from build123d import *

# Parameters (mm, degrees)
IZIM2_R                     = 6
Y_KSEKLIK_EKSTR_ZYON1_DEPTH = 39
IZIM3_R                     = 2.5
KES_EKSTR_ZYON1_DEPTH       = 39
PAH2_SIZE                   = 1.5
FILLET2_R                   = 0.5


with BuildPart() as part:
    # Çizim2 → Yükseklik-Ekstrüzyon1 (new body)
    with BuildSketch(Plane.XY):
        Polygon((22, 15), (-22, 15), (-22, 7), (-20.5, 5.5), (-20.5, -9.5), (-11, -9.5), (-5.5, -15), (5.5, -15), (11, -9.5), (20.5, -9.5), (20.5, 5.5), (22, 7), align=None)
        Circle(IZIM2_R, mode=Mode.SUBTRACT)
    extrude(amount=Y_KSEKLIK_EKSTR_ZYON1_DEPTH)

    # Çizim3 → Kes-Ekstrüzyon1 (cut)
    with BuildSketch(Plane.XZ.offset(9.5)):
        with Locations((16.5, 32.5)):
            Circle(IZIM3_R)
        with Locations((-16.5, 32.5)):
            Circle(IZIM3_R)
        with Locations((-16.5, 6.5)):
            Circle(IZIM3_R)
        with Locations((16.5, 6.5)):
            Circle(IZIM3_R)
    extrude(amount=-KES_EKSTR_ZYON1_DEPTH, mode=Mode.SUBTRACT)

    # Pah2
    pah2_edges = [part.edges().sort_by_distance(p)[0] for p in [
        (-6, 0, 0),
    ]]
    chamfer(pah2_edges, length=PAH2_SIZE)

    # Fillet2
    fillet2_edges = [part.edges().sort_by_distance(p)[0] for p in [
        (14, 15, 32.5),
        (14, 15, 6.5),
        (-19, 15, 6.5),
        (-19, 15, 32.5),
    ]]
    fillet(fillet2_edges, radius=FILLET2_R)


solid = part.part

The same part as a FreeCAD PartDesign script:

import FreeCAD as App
import Part
import Sketcher


def edges_at(feature, points):
    """Names of the edges that pass closest to the given points."""
    edges = feature.Shape.Edges
    near = lambda p: min(range(len(edges)), key=lambda i: edges[i].distToShape(Part.Vertex(*p))[0])
    return sorted({f"Edge{near(p) + 1}" for p in points})

doc = App.newDocument("Part")
body = doc.addObject("PartDesign::Body", "Body")

sketch1 = body.newObject("Sketcher::SketchObject", "Sketch")
sketch1.AttachmentSupport = (doc.getObject("XY_Plane"), [""])
sketch1.MapMode = "FlatFace"
sketch1.addGeometry([
    Part.LineSegment(App.Vector(22, 15, 0), App.Vector(-22, 15, 0)),
    Part.LineSegment(App.Vector(-22, 15, 0), App.Vector(-22, 7, 0)),
    Part.LineSegment(App.Vector(-22, 7, 0), App.Vector(-20.5, 5.5, 0)),
    Part.LineSegment(App.Vector(-20.5, 5.5, 0), App.Vector(-20.5, -9.5, 0)),
    Part.LineSegment(App.Vector(-20.5, -9.5, 0), App.Vector(-11, -9.5, 0)),
    Part.LineSegment(App.Vector(-11, -9.5, 0), App.Vector(-5.5, -15, 0)),
    Part.LineSegment(App.Vector(-5.5, -15, 0), App.Vector(5.5, -15, 0)),
    Part.LineSegment(App.Vector(5.5, -15, 0), App.Vector(11, -9.5, 0)),
    Part.LineSegment(App.Vector(11, -9.5, 0), App.Vector(20.5, -9.5, 0)),
    Part.LineSegment(App.Vector(20.5, -9.5, 0), App.Vector(20.5, 5.5, 0)),
    Part.LineSegment(App.Vector(20.5, 5.5, 0), App.Vector(22, 7, 0)),
    Part.LineSegment(App.Vector(22, 7, 0), App.Vector(22, 15, 0)),
    Part.Circle(App.Vector(0, 0, 0), App.Vector(0, 0, 1), 6),
], False)
sketch1.addConstraint([
    Sketcher.Constraint("Coincident", 0, 2, 1, 1),
    Sketcher.Constraint("Coincident", 1, 2, 2, 1),
    Sketcher.Constraint("Coincident", 2, 2, 3, 1),
    Sketcher.Constraint("Coincident", 3, 2, 4, 1),
    Sketcher.Constraint("Coincident", 4, 2, 5, 1),
    Sketcher.Constraint("Coincident", 5, 2, 6, 1),
    Sketcher.Constraint("Coincident", 6, 2, 7, 1),
    Sketcher.Constraint("Coincident", 7, 2, 8, 1),
    Sketcher.Constraint("Coincident", 8, 2, 9, 1),
    Sketcher.Constraint("Coincident", 9, 2, 10, 1),
    Sketcher.Constraint("Coincident", 10, 2, 11, 1),
    Sketcher.Constraint("Coincident", 11, 2, 0, 1),
    Sketcher.Constraint("Horizontal", 0),
    Sketcher.Constraint("Vertical", 1),
    Sketcher.Constraint("Vertical", 3),
    Sketcher.Constraint("Horizontal", 4),
    Sketcher.Constraint("Horizontal", 6),
    Sketcher.Constraint("Horizontal", 8),
    Sketcher.Constraint("Vertical", 9),
    Sketcher.Constraint("Vertical", 11),
    Sketcher.Constraint("Coincident", 12, 3, -1, 1),
    Sketcher.Constraint("Symmetric", 4, 2, 7, 2, -2),
    Sketcher.Constraint("Symmetric", 2, 2, 9, 2, -2),
    Sketcher.Constraint("Symmetric", 1, 2, 10, 2, -2),
    Sketcher.Constraint("Parallel", 2, 5),
    Sketcher.Constraint("Perpendicular", 5, 7),
    Sketcher.Constraint("Parallel", 7, 10),
    Sketcher.Constraint("Diameter", 12, 12.0),
    Sketcher.Constraint("DistanceX", 0, 2, 0, 1, 44.0),
    Sketcher.Constraint("DistanceX", 6, 1, 6, 2, 11.0),
    Sketcher.Constraint("DistanceY", 1, 2, 1, 1, 8.0),
    Sketcher.Constraint("DistanceY", 3, 2, 3, 1, 15.0),
    Sketcher.Constraint("DistanceX", 4, 1, 4, 2, 9.5),
    Sketcher.Constraint("DistanceY", -1, 1, 0, 2, 15.0),
    Sketcher.Constraint("DistanceX", 4, 2, -1, 1, 11.0),
])
pad1 = body.newObject("PartDesign::Pad", "Pad")
pad1.Profile = sketch1
pad1.Length = 39

sketch2 = body.newObject("Sketcher::SketchObject", "Sketch001")
sketch2.AttachmentSupport = (doc.getObject("XZ_Plane"), [""])
sketch2.MapMode = "FlatFace"
sketch2.AttachmentOffset = App.Placement(App.Vector(0, 0, 9.5), App.Rotation())
sketch2.addGeometry([
    Part.Circle(App.Vector(16.5, 32.5, 0), App.Vector(0, 0, 1), 2.5),
    Part.Circle(App.Vector(-16.5, 32.5, 0), App.Vector(0, 0, 1), 2.5),
    Part.Circle(App.Vector(-16.5, 6.5, 0), App.Vector(0, 0, 1), 2.5),
    Part.Circle(App.Vector(16.5, 6.5, 0), App.Vector(0, 0, 1), 2.5),
], False)
sketch2.addConstraint([
    Sketcher.Constraint("Equal", 0, 1),
    Sketcher.Constraint("Equal", 1, 2),
    Sketcher.Constraint("Equal", 2, 3),
    Sketcher.Constraint("Symmetric", 0, 3, 1, 3, -2),
    Sketcher.Constraint("Symmetric", 2, 3, 3, 3, -2),
    Sketcher.Constraint("Vertical", 1, 3, 2, 3),
    Sketcher.Constraint("Diameter", 0, 5.0),
    Sketcher.Constraint("DistanceX", 1, 3, 0, 3, 33.0),
    Sketcher.Constraint("DistanceY", 2, 3, 1, 3, 26.0),
    Sketcher.Constraint("DistanceY", -1, 1, 0, 3, 32.5),
])
pocket1 = body.newObject("PartDesign::Pocket", "Pocket")
pocket1.Profile = sketch2
pocket1.Length = 39
doc.recompute()

chamfer = body.newObject("PartDesign::Chamfer", "Chamfer")
chamfer.Base = (pocket1, edges_at(pocket1, [(-6, 0, 0)]))
chamfer.Size = 1.5
doc.recompute()

fillet = body.newObject("PartDesign::Fillet", "Fillet")
fillet.Base = (chamfer, edges_at(chamfer, [
    (14, 15, 32.5),
    (14, 15, 6.5),
    (-19, 15, 6.5),
    (-19, 15, 32.5),
]))
fillet.Radius = 0.5

doc.recompute()
